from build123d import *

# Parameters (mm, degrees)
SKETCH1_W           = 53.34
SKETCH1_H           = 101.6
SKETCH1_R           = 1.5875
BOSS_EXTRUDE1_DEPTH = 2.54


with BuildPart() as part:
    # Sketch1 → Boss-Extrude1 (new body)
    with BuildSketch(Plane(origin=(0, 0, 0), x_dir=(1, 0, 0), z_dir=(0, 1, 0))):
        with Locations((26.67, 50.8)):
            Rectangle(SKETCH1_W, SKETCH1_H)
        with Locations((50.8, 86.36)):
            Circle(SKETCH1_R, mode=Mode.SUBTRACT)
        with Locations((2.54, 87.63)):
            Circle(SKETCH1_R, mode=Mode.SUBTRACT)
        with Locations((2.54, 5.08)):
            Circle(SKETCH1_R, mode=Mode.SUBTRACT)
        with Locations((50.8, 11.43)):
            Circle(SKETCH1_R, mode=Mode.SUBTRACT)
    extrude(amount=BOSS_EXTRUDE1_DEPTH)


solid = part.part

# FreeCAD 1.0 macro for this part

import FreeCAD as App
import Part
import Sketcher
from FreeCAD import Vector
Q = App.Units.Quantity


def add_polygon(sketch, points):
    """Adds a closed chain of lines whose ends are joined by coincident constraints."""
    first, n = sketch.GeometryCount, len(points)
    for a, b in zip(points, points[1:] + points[:1]):
        sketch.addGeometry(Part.LineSegment(App.Vector(*a, 0), App.Vector(*b, 0)), False)
    for i in range(n):
        sketch.addConstraint(Sketcher.Constraint("Coincident", first + i, 2, first + (i + 1) % n, 1))

doc = App.newDocument("Part")
params = doc.addObject("Spreadsheet::Sheet", "Params")
for row, (alias, value) in enumerate([
    ("sketch1_height", "4 in"),
    ("sketch1_diameter", "0.125 in"),
    ("sketch1_width", "2.1 in"),
    ("pad1_length", "0.1 in"),
], start=1):
    params.set(f"A{row}", alias)
    params.set(f"B{row}", "=" + value)
    params.setAlias(f"B{row}", alias)

body = doc.addObject("PartDesign::Body", "Body")

# Sketch on XZ plane
sketch1 = doc.addObject("Sketcher::SketchObject", "Sketch")
body.addObject(sketch1)
sketch1.AttachmentSupport = (doc.XZ_Plane, [""])
sketch1.MapMode = "FlatFace"
add_polygon(sketch1, [(0, -101.6), (0, 0), (53.3, 0), (53.3, -101.6)])  # lines 0-3
sketch1.addGeometry(Part.Circle(Vector(2.5, -5.1, 0), Vector(0, 0, 1), 1.6), False)  # 4
sketch1.addGeometry(Part.Circle(Vector(50.8, -11.4, 0), Vector(0, 0, 1), 1.6), False)  # 5
sketch1.addGeometry(Part.Circle(Vector(2.5, -87.6, 0), Vector(0, 0, 1), 1.6), False)  # 6
sketch1.addGeometry(Part.Circle(Vector(50.8, -86.4, 0), Vector(0, 0, 1), 1.6), False)  # 7
sketch1.addConstraint([
    Sketcher.Constraint("Vertical", 0),
    Sketcher.Constraint("Horizontal", 1),
    Sketcher.Constraint("Vertical", 2),
    Sketcher.Constraint("Horizontal", 3),
    Sketcher.Constraint("Coincident", 0, 2, -1, 1),
    Sketcher.Constraint("Equal", 4, 5),
    Sketcher.Constraint("Equal", 5, 6),
    Sketcher.Constraint("Equal", 6, 7),
    Sketcher.Constraint("Vertical", 4, 3, 6, 3),
    Sketcher.Constraint("Vertical", 5, 3, 7, 3),
    Sketcher.Constraint("DistanceY", 0, 1, 0, 2, Q("4 in")),
    Sketcher.Constraint("Diameter", 4, Q("0.125 in")),
    Sketcher.Constraint("DistanceX", 1, 1, 1, 2, Q("2.1 in")),
    Sketcher.Constraint("DistanceX", -1, 1, 5, 3, Q("2 in")),
    Sketcher.Constraint("DistanceY", 6, 3, 5, 3, Q("3 in")),
    Sketcher.Constraint("DistanceX", 4, 3, 1, 2, Q("2 in")),
    Sketcher.Constraint("DistanceY", 4, 3, -1, 1, Q("0.2 in")),
    Sketcher.Constraint("DistanceY", 7, 3, -1, 1, Q("3.4 in")),
    Sketcher.Constraint("DistanceY", 5, 3, -1, 1, Q("0.45 in")),
])
sketch1.setExpression("Constraints[14]", "Params.sketch1_height")
sketch1.setExpression("Constraints[15]", "Params.sketch1_diameter")
sketch1.setExpression("Constraints[16]", "Params.sketch1_width")
pad1 = doc.addObject("PartDesign::Pad", "Pad")
body.addObject(pad1)
pad1.Profile = sketch1
pad1.setExpression("Length", "Params.pad1_length")
pad1.Reversed = True

doc.recompute()
